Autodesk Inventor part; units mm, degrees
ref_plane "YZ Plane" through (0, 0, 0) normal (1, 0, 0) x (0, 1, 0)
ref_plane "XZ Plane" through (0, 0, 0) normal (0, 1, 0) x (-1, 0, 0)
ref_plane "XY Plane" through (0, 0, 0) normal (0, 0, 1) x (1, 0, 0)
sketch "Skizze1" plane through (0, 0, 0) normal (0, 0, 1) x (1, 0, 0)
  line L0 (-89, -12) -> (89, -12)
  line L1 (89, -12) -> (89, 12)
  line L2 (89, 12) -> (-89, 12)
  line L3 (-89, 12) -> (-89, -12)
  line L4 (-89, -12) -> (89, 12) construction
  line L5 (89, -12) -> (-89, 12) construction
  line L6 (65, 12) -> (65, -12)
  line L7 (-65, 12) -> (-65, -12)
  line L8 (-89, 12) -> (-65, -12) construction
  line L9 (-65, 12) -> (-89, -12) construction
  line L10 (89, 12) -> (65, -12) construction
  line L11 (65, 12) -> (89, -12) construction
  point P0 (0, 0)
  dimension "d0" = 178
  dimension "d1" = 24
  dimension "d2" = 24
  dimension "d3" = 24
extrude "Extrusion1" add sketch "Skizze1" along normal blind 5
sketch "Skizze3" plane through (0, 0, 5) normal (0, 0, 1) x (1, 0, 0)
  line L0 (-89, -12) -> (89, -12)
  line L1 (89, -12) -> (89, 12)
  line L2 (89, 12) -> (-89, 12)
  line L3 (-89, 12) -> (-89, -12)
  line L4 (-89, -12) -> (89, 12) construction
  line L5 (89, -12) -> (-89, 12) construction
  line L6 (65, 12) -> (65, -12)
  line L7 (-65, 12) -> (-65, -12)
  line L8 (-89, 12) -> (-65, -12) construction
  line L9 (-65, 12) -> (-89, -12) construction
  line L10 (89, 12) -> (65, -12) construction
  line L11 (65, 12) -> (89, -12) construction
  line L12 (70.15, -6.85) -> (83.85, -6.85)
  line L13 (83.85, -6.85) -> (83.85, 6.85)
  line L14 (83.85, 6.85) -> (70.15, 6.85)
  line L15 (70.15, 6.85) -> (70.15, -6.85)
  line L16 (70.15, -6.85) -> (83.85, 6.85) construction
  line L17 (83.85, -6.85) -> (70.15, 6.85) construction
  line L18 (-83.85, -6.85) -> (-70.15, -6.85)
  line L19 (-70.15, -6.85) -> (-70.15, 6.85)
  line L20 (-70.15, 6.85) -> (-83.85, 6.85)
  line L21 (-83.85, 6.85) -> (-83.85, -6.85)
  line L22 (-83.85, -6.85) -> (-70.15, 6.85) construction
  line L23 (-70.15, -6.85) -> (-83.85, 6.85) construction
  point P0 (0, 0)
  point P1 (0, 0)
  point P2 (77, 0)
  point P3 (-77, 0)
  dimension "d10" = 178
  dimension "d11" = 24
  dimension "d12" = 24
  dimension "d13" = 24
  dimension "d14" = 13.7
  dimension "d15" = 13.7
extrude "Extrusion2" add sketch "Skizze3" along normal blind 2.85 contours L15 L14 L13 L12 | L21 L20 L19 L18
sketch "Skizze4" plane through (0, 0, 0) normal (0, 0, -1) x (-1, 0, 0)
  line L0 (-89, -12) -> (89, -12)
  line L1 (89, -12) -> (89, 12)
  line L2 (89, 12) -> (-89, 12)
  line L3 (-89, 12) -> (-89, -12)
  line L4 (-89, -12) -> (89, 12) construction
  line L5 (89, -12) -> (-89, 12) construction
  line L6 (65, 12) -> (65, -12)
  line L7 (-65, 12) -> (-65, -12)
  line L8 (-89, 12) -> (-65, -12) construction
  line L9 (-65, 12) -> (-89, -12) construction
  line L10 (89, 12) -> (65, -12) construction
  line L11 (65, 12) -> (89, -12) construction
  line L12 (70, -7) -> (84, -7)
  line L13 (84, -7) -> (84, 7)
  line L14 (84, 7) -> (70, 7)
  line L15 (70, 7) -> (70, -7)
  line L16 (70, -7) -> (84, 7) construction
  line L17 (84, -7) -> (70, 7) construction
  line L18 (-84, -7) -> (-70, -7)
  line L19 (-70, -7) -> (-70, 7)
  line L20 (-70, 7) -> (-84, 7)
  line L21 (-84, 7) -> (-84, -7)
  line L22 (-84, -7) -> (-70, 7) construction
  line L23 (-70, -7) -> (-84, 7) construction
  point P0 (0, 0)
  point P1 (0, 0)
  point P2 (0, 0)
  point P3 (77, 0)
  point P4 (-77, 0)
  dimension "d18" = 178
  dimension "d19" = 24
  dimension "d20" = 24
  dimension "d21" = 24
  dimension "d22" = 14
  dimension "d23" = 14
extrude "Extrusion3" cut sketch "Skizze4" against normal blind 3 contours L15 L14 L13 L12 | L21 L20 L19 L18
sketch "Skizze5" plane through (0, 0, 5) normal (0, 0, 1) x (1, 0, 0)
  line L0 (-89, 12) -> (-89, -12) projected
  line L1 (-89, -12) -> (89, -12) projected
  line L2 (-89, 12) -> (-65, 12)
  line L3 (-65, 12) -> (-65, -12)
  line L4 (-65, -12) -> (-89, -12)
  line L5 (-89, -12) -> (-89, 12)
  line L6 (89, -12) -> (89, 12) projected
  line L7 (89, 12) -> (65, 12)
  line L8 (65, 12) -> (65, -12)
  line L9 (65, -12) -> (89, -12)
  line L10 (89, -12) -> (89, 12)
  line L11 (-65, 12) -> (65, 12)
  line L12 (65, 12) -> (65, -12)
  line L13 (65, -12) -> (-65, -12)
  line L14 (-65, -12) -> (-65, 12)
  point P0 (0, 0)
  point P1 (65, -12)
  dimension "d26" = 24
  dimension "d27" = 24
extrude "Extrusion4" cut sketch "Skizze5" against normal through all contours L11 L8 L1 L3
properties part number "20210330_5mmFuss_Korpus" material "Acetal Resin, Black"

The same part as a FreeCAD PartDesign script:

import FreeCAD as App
import Part
import Sketcher
from FreeCAD import Vector
Q = App.Units.Quantity

doc = App.newDocument("Part")
body = doc.addObject("PartDesign::Body", "Body")
body.AllowCompound = True

sketch1 = body.newObject("Sketcher::SketchObject", "Sketch")
sketch1.AttachmentSupport = (doc.getObject("XY_Plane"), [""])
sketch1.MapMode = "FlatFace"
sketch1.addGeometry(Part.LineSegment(Vector(-89, 12, 0), Vector(-89, -12, 0)), False)
sketch1.addGeometry(Part.LineSegment(Vector(-89, -12, 0), Vector(89, -12, 0)), False)
sketch1.addGeometry(Part.LineSegment(Vector(89, -12, 0), Vector(89, 12, 0)), False)
sketch1.addGeometry(Part.LineSegment(Vector(89, 12, 0), Vector(-89, 12, 0)), False)
sketch1.addConstraint(Sketcher.Constraint("Coincident", 0, 2, 1, 1))
sketch1.addConstraint(Sketcher.Constraint("Coincident", 1, 2, 2, 1))
sketch1.addConstraint(Sketcher.Constraint("Coincident", 2, 2, 3, 1))
sketch1.addConstraint(Sketcher.Constraint("Coincident", 3, 2, 0, 1))
sketch1.addConstraint(Sketcher.Constraint("Vertical", 0))
sketch1.addConstraint(Sketcher.Constraint("Horizontal", 1))
sketch1.addConstraint(Sketcher.Constraint("Vertical", 2))
sketch1.addConstraint(Sketcher.Constraint("Horizontal", 3))
sketch1.addConstraint(Sketcher.Constraint("Symmetric", 0, 2, 2, 2, -1, 1))
sketch1.addConstraint(Sketcher.Constraint("DistanceX", 1, 1, 1, 2, Q("178 mm")))
sketch1.addConstraint(Sketcher.Constraint("DistanceY", 0, 2, 0, 1, Q("24 mm")))
pad1 = body.newObject("PartDesign::Pad", "Pad")
pad1.Profile = sketch1
pad1.Length = 5

sketch2 = body.newObject("Sketcher::SketchObject", "Sketch001")
sketch2.AttachmentSupport = (doc.getObject("XY_Plane"), [""])
sketch2.MapMode = "FlatFace"
sketch2.AttachmentOffset = App.Placement(Vector(0, 0, 5), App.Rotation())
sketch2.addGeometry(Part.LineSegment(Vector(70.15, 6.85, 0), Vector(70.15, -6.85, 0)), False)
sketch2.addGeometry(Part.LineSegment(Vector(70.15, -6.85, 0), Vector(83.85, -6.85, 0)), False)
sketch2.addGeometry(Part.LineSegment(Vector(83.85, -6.85, 0), Vector(83.85, 6.85, 0)), False)
sketch2.addGeometry(Part.LineSegment(Vector(83.85, 6.85, 0), Vector(70.15, 6.85, 0)), False)
sketch2.addGeometry(Part.LineSegment(Vector(-83.85, 6.85, 0), Vector(-83.85, -6.85, 0)), False)
sketch2.addGeometry(Part.LineSegment(Vector(-83.85, -6.85, 0), Vector(-70.15, -6.85, 0)), False)
sketch2.addGeometry(Part.LineSegment(Vector(-70.15, -6.85, 0), Vector(-70.15, 6.85, 0)), False)
sketch2.addGeometry(Part.LineSegment(Vector(-70.15, 6.85, 0), Vector(-83.85, 6.85, 0)), False)
sketch2.addConstraint(Sketcher.Constraint("Coincident", 0, 2, 1, 1))
sketch2.addConstraint(Sketcher.Constraint("Coincident", 1, 2, 2, 1))
sketch2.addConstraint(Sketcher.Constraint("Coincident", 2, 2, 3, 1))
sketch2.addConstraint(Sketcher.Constraint("Coincident", 3, 2, 0, 1))
sketch2.addConstraint(Sketcher.Constraint("Coincident", 4, 2, 5, 1))
sketch2.addConstraint(Sketcher.Constraint("Coincident", 5, 2, 6, 1))
sketch2.addConstraint(Sketcher.Constraint("Coincident", 6, 2, 7, 1))
sketch2.addConstraint(Sketcher.Constraint("Coincident", 7, 2, 4, 1))
sketch2.addConstraint(Sketcher.Constraint("Vertical", 0))
sketch2.addConstraint(Sketcher.Constraint("Horizontal", 1))
sketch2.addConstraint(Sketcher.Constraint("Vertical", 2))
sketch2.addConstraint(Sketcher.Constraint("Horizontal", 3))
sketch2.addConstraint(Sketcher.Constraint("Vertical", 4))
sketch2.addConstraint(Sketcher.Constraint("Horizontal", 5))
sketch2.addConstraint(Sketcher.Constraint("Vertical", 6))
sketch2.addConstraint(Sketcher.Constraint("Horizontal", 7))
sketch2.addConstraint(Sketcher.Constraint("Symmetric", 2, 2, 4, 2, -1, 1))
sketch2.addConstraint(Sketcher.Constraint("Symmetric", 0, 2, 6, 2, -1, 1))
sketch2.addConstraint(Sketcher.Constraint("Horizontal", 1, 2, 4, 2))
sketch2.addConstraint(Sketcher.Constraint("Equal", 7, 0))
sketch2.addConstraint(Sketcher.Constraint("DistanceX", 1, 1, 1, 2, Q("13.7 mm")))
sketch2.addConstraint(Sketcher.Constraint("DistanceX", 4, 2, 0, 2, Q("154 mm")))
pad2 = body.newObject("PartDesign::Pad", "Pad001")
pad2.Profile = sketch2
pad2.Length = 2.85

sketch3 = body.newObject("Sketcher::SketchObject", "Sketch002")
sketch3.AttachmentSupport = (doc.getObject("XY_Plane"), [""])
sketch3.MapMode = "FlatFace"
sketch3.addGeometry(Part.LineSegment(Vector(-70, 7, 0), Vector(-70, -7, 0)), False)
sketch3.addGeometry(Part.LineSegment(Vector(-70, -7, 0), Vector(-84, -7, 0)), False)
sketch3.addGeometry(Part.LineSegment(Vector(-84, -7, 0), Vector(-84, 7, 0)), False)
sketch3.addGeometry(Part.LineSegment(Vector(-84, 7, 0), Vector(-70, 7, 0)), False)
sketch3.addGeometry(Part.LineSegment(Vector(84, 7, 0), Vector(84, -7, 0)), False)
sketch3.addGeometry(Part.LineSegment(Vector(84, -7, 0), Vector(70, -7, 0)), False)
sketch3.addGeometry(Part.LineSegment(Vector(70, -7, 0), Vector(70, 7, 0)), False)
sketch3.addGeometry(Part.LineSegment(Vector(70, 7, 0), Vector(84, 7, 0)), False)
sketch3.addConstraint(Sketcher.Constraint("Coincident", 0, 2, 1, 1))
sketch3.addConstraint(Sketcher.Constraint("Coincident", 1, 2, 2, 1))
sketch3.addConstraint(Sketcher.Constraint("Coincident", 2, 2, 3, 1))
sketch3.addConstraint(Sketcher.Constraint("Coincident", 3, 2, 0, 1))
sketch3.addConstraint(Sketcher.Constraint("Coincident", 4, 2, 5, 1))
sketch3.addConstraint(Sketcher.Constraint("Coincident", 5, 2, 6, 1))
sketch3.addConstraint(Sketcher.Constraint("Coincident", 6, 2, 7, 1))
sketch3.addConstraint(Sketcher.Constraint("Coincident", 7, 2, 4, 1))
sketch3.addConstraint(Sketcher.Constraint("Vertical", 0))
sketch3.addConstraint(Sketcher.Constraint("Horizontal", 1))
sketch3.addConstraint(Sketcher.Constraint("Vertical", 2))
sketch3.addConstraint(Sketcher.Constraint("Horizontal", 3))
sketch3.addConstraint(Sketcher.Constraint("Vertical", 4))
sketch3.addConstraint(Sketcher.Constraint("Horizontal", 5))
sketch3.addConstraint(Sketcher.Constraint("Vertical", 6))
sketch3.addConstraint(Sketcher.Constraint("Horizontal", 7))
sketch3.addConstraint(Sketcher.Constraint("Symmetric", 2, 2, 4, 2, -1, 1))
sketch3.addConstraint(Sketcher.Constraint("Symmetric", 0, 2, 6, 2, -1, 1))
sketch3.addConstraint(Sketcher.Constraint("Horizontal", 1, 2, 4, 2))
sketch3.addConstraint(Sketcher.Constraint("Equal", 7, 0))
sketch3.addConstraint(Sketcher.Constraint("DistanceX", 1, 2, 1, 1, Q("14 mm")))
sketch3.addConstraint(Sketcher.Constraint("DistanceX", 0, 2, -1, 1, Q("70 mm")))
pocket1 = body.newObject("PartDesign::Pocket", "Pocket")
pocket1.Profile = sketch3
pocket1.Length = 3
pocket1.Reversed = True

sketch4 = body.newObject("Sketcher::SketchObject", "Sketch003")
sketch4.AttachmentSupport = (doc.getObject("XY_Plane"), [""])
sketch4.MapMode = "FlatFace"
sketch4.AttachmentOffset = App.Placement(Vector(0, 0, 5), App.Rotation())
sketch4.addGeometry(Part.LineSegment(Vector(65, 12, 0), Vector(-65, 12, 0)), False)
sketch4.addGeometry(Part.LineSegment(Vector(-65, 12, 0), Vector(-65, -12, 0)), False)
sketch4.addGeometry(Part.LineSegment(Vector(-65, -12, 0), Vector(65, -12, 0)), False)
sketch4.addGeometry(Part.LineSegment(Vector(65, -12, 0), Vector(65, 12, 0)), False)
sketch4.addConstraint(Sketcher.Constraint("Coincident", 0, 2, 1, 1))
sketch4.addConstraint(Sketcher.Constraint("Coincident", 1, 2, 2, 1))
sketch4.addConstraint(Sketcher.Constraint("Coincident", 2, 2, 3, 1))
sketch4.addConstraint(Sketcher.Constraint("Coincident", 3, 2, 0, 1))
sketch4.addConstraint(Sketcher.Constraint("Horizontal", 0))
sketch4.addConstraint(Sketcher.Constraint("Vertical", 1))
sketch4.addConstraint(Sketcher.Constraint("Horizontal", 2))
sketch4.addConstraint(Sketcher.Constraint("Vertical", 3))
sketch4.addConstraint(Sketcher.Constraint("Symmetric", 0, 2, 2, 2, -1, 1))
sketch4.addConstraint(Sketcher.Constraint("DistanceY", 1, 2, 1, 1, Q("24 mm")))
sketch4.addConstraint(Sketcher.Constraint("DistanceX", 0, 2, 0, 1, Q("130 mm")))
pocket2 = body.newObject("PartDesign::Pocket", "Pocket001")
pocket2.Profile = sketch4
pocket2.Type = "ThroughAll"

doc.recompute()
